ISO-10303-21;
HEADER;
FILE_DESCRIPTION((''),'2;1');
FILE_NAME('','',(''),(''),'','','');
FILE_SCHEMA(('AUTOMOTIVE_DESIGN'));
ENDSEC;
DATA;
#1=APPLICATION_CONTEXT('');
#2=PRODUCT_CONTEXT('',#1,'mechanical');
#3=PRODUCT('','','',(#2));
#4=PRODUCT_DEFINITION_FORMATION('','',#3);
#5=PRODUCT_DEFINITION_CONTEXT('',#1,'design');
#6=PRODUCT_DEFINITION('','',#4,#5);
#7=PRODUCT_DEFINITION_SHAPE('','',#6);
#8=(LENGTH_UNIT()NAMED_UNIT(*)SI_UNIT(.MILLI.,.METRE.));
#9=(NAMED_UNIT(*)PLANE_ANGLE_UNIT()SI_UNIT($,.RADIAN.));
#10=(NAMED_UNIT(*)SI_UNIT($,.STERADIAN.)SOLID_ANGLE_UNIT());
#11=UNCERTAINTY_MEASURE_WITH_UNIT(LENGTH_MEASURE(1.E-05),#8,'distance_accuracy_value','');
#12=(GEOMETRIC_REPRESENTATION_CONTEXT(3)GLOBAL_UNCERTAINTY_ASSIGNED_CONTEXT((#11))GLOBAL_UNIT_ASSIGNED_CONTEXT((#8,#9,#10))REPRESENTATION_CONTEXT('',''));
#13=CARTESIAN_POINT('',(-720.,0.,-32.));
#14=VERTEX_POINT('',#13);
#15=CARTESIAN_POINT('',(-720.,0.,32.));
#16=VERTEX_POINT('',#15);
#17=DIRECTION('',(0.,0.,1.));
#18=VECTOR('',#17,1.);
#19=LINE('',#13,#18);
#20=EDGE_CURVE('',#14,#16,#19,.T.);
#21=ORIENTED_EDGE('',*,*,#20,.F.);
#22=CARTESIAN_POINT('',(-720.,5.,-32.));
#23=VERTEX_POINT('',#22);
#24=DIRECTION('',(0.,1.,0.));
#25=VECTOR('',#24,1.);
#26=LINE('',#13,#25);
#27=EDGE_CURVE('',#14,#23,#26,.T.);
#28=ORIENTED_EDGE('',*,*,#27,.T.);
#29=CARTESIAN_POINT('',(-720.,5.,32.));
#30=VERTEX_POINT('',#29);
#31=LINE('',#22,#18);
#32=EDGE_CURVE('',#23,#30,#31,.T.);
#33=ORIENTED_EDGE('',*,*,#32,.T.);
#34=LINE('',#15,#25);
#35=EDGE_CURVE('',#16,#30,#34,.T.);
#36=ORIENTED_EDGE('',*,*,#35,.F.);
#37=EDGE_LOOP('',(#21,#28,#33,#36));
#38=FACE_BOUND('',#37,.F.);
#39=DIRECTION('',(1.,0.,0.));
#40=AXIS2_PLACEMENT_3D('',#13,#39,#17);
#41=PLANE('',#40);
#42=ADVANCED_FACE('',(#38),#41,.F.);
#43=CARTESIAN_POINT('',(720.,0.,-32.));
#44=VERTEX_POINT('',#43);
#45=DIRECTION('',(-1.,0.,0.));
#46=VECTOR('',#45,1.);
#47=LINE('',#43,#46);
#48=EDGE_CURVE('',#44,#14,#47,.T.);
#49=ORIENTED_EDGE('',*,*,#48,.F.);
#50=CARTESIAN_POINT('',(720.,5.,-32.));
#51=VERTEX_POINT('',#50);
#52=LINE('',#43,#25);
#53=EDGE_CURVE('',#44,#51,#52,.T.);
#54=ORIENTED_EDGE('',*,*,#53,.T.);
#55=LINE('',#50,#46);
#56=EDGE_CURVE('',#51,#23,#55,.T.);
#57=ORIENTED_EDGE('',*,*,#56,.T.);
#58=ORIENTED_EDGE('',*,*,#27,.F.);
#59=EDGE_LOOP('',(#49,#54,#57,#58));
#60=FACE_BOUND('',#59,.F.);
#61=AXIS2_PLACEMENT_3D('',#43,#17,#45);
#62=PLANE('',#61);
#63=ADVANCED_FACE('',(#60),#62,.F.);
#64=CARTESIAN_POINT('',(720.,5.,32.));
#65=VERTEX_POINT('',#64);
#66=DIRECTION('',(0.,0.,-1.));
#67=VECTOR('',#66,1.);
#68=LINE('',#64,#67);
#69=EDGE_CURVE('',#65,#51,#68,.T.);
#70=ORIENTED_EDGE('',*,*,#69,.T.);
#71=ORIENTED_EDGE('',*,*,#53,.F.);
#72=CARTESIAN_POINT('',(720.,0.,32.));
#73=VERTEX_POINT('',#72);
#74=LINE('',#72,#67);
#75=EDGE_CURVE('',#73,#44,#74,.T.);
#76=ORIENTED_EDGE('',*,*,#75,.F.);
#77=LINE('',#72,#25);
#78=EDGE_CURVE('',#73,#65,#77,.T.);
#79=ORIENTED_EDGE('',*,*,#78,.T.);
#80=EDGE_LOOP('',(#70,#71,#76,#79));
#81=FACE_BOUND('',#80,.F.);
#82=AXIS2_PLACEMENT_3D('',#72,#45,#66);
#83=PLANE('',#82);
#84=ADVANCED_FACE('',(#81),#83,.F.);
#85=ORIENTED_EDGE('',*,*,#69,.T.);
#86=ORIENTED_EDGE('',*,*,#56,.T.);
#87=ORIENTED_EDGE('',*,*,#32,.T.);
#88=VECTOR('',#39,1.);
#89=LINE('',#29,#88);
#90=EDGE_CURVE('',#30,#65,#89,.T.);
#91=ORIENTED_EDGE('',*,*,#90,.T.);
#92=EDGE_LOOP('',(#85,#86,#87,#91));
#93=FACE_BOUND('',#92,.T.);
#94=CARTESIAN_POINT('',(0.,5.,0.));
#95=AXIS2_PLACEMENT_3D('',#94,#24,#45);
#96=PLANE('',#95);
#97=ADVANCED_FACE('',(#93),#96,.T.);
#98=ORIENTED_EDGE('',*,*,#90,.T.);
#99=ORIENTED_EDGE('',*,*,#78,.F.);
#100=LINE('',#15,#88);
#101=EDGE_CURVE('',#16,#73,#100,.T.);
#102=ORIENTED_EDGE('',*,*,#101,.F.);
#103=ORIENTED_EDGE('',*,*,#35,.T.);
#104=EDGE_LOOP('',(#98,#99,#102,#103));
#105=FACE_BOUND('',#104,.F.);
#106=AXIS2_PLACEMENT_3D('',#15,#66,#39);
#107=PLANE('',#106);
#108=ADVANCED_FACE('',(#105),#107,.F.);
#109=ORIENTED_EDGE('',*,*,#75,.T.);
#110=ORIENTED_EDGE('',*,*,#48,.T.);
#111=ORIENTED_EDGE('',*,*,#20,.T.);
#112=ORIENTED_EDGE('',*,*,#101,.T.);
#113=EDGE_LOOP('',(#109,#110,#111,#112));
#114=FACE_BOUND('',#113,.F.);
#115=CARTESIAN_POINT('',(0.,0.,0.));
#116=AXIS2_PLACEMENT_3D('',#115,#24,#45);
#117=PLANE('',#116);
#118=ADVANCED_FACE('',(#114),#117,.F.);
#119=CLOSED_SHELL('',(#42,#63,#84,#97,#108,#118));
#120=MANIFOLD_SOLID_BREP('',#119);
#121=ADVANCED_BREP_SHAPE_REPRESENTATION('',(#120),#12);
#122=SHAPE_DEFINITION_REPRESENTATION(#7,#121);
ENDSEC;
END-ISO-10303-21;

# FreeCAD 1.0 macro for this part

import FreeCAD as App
import Part
import Sketcher
from FreeCAD import Vector
Q = App.Units.Quantity


def add_polygon(sketch, points):
    """Adds a closed chain of lines whose ends are joined by coincident constraints."""
    first, n = sketch.GeometryCount, len(points)
    for a, b in zip(points, points[1:] + points[:1]):
        sketch.addGeometry(Part.LineSegment(App.Vector(*a, 0), App.Vector(*b, 0)), False)
    for i in range(n):
        sketch.addConstraint(Sketcher.Constraint("Coincident", first + i, 2, first + (i + 1) % n, 1))

doc = App.newDocument("Part")
body = doc.addObject("PartDesign::Body", "Body")

# Sketch on XZ plane
sketch1 = body.newObject("Sketcher::SketchObject", "Sketch")
sketch1.AttachmentSupport = (doc.getObject("XZ_Plane"), [""])
sketch1.MapMode = "FlatFace"
add_polygon(sketch1, [(-720, -32), (-720, 32), (720, 32), (720, -32)])  # lines 0-3
sketch1.addConstraint([
    Sketcher.Constraint("Vertical", 0),
    Sketcher.Constraint("Horizontal", 1),
    Sketcher.Constraint("Vertical", 2),
    Sketcher.Constraint("Horizontal", 3),
    Sketcher.Constraint("Symmetric", 0, 2, 2, 2, -1, 1),
    Sketcher.Constraint("DistanceX", 1, 1, 1, 2, Q("1440 mm")),
    Sketcher.Constraint("DistanceY", 0, 1, 0, 2, Q("64 mm")),
])
pad1 = body.newObject("PartDesign::Pad", "Pad")
pad1.Profile = sketch1
pad1.Length = 5
pad1.Reversed = True

doc.recompute()
